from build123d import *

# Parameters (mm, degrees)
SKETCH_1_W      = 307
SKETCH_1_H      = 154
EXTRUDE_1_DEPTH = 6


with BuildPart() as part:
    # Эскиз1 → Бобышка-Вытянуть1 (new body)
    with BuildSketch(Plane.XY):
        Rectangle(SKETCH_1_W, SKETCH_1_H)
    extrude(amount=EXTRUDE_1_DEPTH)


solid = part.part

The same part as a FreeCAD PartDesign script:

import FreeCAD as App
import Part
import Sketcher
from FreeCAD import Vector


def add_polygon(sketch, points):
    """Adds a closed chain of lines whose ends are joined by coincident constraints."""
    first, n = sketch.GeometryCount, len(points)
    for a, b in zip(points, points[1:] + points[:1]):
        sketch.addGeometry(Part.LineSegment(App.Vector(*a, 0), App.Vector(*b, 0)), False)
    for i in range(n):
        sketch.addConstraint(Sketcher.Constraint("Coincident", first + i, 2, first + (i + 1) % n, 1))

doc = App.newDocument("Part")
body = doc.addObject("PartDesign::Body", "Body")

sketch1 = doc.addObject("Sketcher::SketchObject", "Sketch")
body.addObject(sketch1)
sketch1.AttachmentSupport = (doc.XY_Plane, [""])
sketch1.MapMode = "FlatFace"
add_polygon(sketch1, [(-153.5, 77), (-153.5, -77), (153.5, -77), (153.5, 77)])
sketch1.addConstraint([
    Sketcher.Constraint("Vertical", 0),
    Sketcher.Constraint("Horizontal", 1),
    Sketcher.Constraint("Vertical", 2),
    Sketcher.Constraint("Horizontal", 3),
    Sketcher.Constraint("Symmetric", 0, 2, 2, 2, -1, 1),
    Sketcher.Constraint("DistanceX", 1, 1, 1, 2, 307.0),
    Sketcher.Constraint("DistanceY", 0, 2, 0, 1, 154.0),
])
pad1 = doc.addObject("PartDesign::Pad", "Pad")
body.addObject(pad1)
pad1.Profile = sketch1
pad1.Length = 6

doc.recompute()
